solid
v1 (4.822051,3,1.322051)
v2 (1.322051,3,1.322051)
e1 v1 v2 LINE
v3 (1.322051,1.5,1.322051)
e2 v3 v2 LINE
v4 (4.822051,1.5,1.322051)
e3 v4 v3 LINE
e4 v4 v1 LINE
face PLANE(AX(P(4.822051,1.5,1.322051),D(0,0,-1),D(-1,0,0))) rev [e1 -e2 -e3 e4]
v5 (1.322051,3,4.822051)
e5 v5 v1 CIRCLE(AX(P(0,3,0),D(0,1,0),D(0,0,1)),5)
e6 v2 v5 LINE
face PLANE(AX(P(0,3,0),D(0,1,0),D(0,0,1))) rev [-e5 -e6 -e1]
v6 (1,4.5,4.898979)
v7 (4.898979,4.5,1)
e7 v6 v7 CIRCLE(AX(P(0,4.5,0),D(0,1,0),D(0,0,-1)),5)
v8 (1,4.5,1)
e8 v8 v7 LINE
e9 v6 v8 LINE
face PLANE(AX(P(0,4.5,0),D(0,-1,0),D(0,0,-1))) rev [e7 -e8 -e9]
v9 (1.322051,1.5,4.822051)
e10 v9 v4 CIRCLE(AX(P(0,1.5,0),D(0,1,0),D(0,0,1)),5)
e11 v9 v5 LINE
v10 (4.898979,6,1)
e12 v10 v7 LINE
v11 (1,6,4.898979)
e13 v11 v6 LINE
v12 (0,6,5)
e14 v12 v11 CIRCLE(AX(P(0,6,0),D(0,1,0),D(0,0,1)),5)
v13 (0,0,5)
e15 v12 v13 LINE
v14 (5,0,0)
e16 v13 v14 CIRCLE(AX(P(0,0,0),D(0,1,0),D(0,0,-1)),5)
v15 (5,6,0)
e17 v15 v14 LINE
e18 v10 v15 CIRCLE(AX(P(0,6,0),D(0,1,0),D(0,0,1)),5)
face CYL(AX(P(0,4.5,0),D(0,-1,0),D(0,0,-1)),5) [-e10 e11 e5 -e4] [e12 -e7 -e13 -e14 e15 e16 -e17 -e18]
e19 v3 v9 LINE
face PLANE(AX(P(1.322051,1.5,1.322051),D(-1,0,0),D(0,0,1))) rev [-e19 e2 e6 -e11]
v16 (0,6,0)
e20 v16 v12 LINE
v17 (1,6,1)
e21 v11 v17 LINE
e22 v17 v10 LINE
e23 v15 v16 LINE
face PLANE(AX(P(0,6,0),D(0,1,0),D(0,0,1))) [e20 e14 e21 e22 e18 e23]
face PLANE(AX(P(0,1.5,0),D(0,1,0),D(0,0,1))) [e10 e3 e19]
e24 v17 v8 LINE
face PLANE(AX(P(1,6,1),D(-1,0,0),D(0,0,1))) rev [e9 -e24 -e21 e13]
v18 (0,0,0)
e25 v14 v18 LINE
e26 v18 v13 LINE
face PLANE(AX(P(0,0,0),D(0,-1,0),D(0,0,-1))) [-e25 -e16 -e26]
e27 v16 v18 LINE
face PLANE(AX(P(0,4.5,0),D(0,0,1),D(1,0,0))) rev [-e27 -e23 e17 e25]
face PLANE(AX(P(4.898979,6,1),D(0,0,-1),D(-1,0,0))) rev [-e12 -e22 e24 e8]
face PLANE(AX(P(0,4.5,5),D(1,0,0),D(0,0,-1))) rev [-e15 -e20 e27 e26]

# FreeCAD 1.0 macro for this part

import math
import FreeCAD as App
import Part
import Sketcher
from FreeCAD import Vector

doc = App.newDocument("Part")
body = doc.addObject("PartDesign::Body", "Body")

sketch1 = body.newObject("Sketcher::SketchObject", "Sketch")
sketch1.AttachmentSupport = (doc.getObject("XZ_Plane"), [""])
sketch1.MapMode = "FlatFace"
sketch1.addGeometry([
    Part.LineSegment(Vector(5, 0, 0), Vector(0, 0, 0)),
    Part.LineSegment(Vector(0, 0, 0), Vector(0, 5, 0)),
    Part.ArcOfCircle(Part.Circle(Vector(0, 0, 0), Vector(0, 0, 1), 5), math.radians(0), math.radians(90)),
], False)
sketch1.addConstraint([
    Sketcher.Constraint("Coincident", 0, 2, 1, 1),
    Sketcher.Constraint("Coincident", 1, 2, 2, 2),
    Sketcher.Constraint("Coincident", 2, 1, 0, 1),
    Sketcher.Constraint("Horizontal", 0),
    Sketcher.Constraint("Vertical", 1),
    Sketcher.Constraint("Coincident", 2, 3, -1, 1),
    Sketcher.Constraint("Coincident", 0, 2, -1, 1),
    Sketcher.Constraint("Radius", 2, 5.0),
])
pad1 = body.newObject("PartDesign::Pad", "Pad")
pad1.Profile = sketch1
pad1.Length = 4.5
pad1.Reversed = True

sketch2 = body.newObject("Sketcher::SketchObject", "Sketch001")
sketch2.AttachmentSupport = (doc.getObject("XZ_Plane"), [""])
sketch2.MapMode = "FlatFace"
sketch2.AttachmentOffset = App.Placement(Vector(0, 0, -1.5), App.Rotation())
sketch2.addGeometry([
    Part.LineSegment(Vector(4.822051, 1.322051, 0), Vector(1.322051, 1.322051, 0)),
    Part.LineSegment(Vector(1.322051, 1.322051, 0), Vector(1.322051, 4.822051, 0)),
    Part.ArcOfCircle(Part.Circle(Vector(0, 0, 0), Vector(0, 0, 1), 5), math.radians(15.331915), math.radians(74.668085)),
], False)
sketch2.addConstraint([
    Sketcher.Constraint("Coincident", 0, 2, 1, 1),
    Sketcher.Constraint("Coincident", 1, 2, 2, 2),
    Sketcher.Constraint("Coincident", 2, 1, 0, 1),
    Sketcher.Constraint("Horizontal", 0),
    Sketcher.Constraint("Vertical", 1),
    Sketcher.Constraint("Coincident", 2, 3, -1, 1),
    Sketcher.Constraint("Equal", 0, 1),
    Sketcher.Constraint("Radius", 2, 5.0),
    Sketcher.Constraint("DistanceX", 0, 2, 0, 1, 3.5),
])
pocket1 = body.newObject("PartDesign::Pocket", "Pocket")
pocket1.Profile = sketch2
pocket1.Length = 1.5

sketch3 = body.newObject("Sketcher::SketchObject", "Sketch002")
sketch3.AttachmentSupport = (doc.getObject("XZ_Plane"), [""])
sketch3.MapMode = "FlatFace"
sketch3.AttachmentOffset = App.Placement(Vector(0, 0, -4.5), App.Rotation())
sketch3.addGeometry([
    Part.LineSegment(Vector(1, 1, 0), Vector(4.898979, 1, 0)),
    Part.ArcOfCircle(Part.Circle(Vector(0, 0, 0), Vector(0, 0, 1), 5), math.radians(0), math.radians(11.536959)),
    Part.LineSegment(Vector(5, 0, 0), Vector(0, 0, 0)),
    Part.LineSegment(Vector(0, 0, 0), Vector(0, 5, 0)),
    Part.ArcOfCircle(Part.Circle(Vector(0, 0, 0), Vector(0, 0, 1), 5), math.radians(78.463041), math.radians(90)),
    Part.LineSegment(Vector(1, 4.898979, 0), Vector(1, 1, 0)),
], False)
sketch3.addConstraint([
    Sketcher.Constraint("Coincident", 0, 2, 1, 2),
    Sketcher.Constraint("Coincident", 1, 1, 2, 1),
    Sketcher.Constraint("Coincident", 2, 2, 3, 1),
    Sketcher.Constraint("Coincident", 3, 2, 4, 2),
    Sketcher.Constraint("Coincident", 4, 1, 5, 1),
    Sketcher.Constraint("Coincident", 5, 2, 0, 1),
    Sketcher.Constraint("Horizontal", 0),
    Sketcher.Constraint("Horizontal", 2),
    Sketcher.Constraint("Vertical", 3),
    Sketcher.Constraint("Vertical", 5),
    Sketcher.Constraint("Coincident", 1, 3, -1, 1),
    Sketcher.Constraint("Coincident", 4, 3, -1, 1),
    Sketcher.Constraint("Coincident", 2, 2, -1, 1),
    Sketcher.Constraint("Equal", 1, 4),
    Sketcher.Constraint("Equal", 0, 5),
    Sketcher.Constraint("Radius", 1, 5.0),
    Sketcher.Constraint("DistanceY", -1, 1, 0, 2, 1.0),
])
pad2 = body.newObject("PartDesign::Pad", "Pad001")
pad2.Profile = sketch3
pad2.Length = 1.5
pad2.Reversed = True

doc.recompute()
